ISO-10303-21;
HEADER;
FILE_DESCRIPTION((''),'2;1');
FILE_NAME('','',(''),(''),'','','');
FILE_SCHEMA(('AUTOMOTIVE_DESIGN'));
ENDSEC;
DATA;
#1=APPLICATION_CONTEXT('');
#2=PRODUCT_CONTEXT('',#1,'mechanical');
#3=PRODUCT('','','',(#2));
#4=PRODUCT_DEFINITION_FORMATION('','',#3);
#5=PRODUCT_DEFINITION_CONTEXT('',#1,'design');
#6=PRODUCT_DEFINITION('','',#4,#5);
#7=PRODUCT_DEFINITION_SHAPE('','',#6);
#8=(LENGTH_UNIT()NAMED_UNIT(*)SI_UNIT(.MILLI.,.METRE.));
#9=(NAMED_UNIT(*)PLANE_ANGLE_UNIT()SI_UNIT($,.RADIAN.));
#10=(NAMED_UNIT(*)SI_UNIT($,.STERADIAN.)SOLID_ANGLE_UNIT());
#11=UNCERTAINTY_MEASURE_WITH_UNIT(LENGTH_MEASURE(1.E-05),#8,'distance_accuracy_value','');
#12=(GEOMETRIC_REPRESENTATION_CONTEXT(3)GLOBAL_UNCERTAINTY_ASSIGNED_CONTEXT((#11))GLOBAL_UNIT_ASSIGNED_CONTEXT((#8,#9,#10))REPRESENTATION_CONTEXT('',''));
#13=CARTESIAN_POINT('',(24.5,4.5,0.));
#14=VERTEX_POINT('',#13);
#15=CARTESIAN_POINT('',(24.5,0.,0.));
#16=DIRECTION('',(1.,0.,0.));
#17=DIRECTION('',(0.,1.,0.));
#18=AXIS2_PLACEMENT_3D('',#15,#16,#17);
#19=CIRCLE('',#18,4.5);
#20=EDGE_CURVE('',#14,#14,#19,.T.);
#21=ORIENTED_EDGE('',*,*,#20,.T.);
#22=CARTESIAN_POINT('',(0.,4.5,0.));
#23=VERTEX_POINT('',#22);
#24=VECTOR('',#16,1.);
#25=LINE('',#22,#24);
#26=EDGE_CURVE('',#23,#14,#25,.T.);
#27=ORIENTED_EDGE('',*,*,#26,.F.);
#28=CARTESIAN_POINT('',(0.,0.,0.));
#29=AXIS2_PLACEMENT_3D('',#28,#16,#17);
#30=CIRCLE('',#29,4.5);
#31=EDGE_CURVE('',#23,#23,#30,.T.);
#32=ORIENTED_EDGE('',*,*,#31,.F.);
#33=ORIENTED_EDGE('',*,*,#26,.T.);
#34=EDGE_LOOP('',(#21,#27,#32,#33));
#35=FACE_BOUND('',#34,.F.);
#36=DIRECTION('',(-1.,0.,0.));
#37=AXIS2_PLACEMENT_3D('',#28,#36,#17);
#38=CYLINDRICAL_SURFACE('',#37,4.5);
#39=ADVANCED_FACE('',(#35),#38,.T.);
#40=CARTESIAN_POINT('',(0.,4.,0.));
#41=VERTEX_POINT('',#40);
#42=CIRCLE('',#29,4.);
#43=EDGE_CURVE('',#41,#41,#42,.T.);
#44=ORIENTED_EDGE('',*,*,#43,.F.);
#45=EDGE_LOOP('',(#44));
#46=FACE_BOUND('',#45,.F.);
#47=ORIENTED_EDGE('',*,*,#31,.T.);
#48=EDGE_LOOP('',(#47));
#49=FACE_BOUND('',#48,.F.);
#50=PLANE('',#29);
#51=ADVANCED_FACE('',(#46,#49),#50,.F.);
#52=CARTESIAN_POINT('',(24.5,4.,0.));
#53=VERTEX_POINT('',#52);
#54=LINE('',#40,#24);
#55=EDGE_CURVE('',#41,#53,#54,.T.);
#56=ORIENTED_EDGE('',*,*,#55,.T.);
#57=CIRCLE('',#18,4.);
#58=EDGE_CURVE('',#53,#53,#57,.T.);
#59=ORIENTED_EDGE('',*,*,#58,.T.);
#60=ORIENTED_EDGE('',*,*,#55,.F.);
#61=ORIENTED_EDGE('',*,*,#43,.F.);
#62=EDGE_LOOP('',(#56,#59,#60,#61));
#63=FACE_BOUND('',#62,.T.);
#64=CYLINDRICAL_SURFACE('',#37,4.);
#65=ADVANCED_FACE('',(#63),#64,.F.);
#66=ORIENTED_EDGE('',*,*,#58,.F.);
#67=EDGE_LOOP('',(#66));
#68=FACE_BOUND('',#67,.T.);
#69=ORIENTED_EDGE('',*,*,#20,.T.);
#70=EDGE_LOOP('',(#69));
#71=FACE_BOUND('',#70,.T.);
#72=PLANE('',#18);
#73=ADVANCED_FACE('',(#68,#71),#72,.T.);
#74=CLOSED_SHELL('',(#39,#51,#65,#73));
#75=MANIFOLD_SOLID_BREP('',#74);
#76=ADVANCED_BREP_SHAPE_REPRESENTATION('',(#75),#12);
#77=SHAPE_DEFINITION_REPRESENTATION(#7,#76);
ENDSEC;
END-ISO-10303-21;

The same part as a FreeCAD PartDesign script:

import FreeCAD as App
import Part
import Sketcher
Q = App.Units.Quantity

doc = App.newDocument("Part")
body = doc.addObject("PartDesign::Body", "Body")

sketch1 = body.newObject("Sketcher::SketchObject", "Sketch")
sketch1.AttachmentSupport = (doc.getObject("YZ_Plane"), [""])
sketch1.MapMode = "FlatFace"
sketch1.addGeometry(Part.Circle(App.Vector(0, 0, 0), App.Vector(0, 0, 1), 4.5), False)
sketch1.addGeometry(Part.Circle(App.Vector(0, 0, 0), App.Vector(0, 0, 1), 4), False)
sketch1.addConstraint(Sketcher.Constraint("Coincident", 0, 3, -1, 1))
sketch1.addConstraint(Sketcher.Constraint("Coincident", 1, 3, -1, 1))
sketch1.addConstraint(Sketcher.Constraint("Diameter", 1, Q("8 mm")))
sketch1.addConstraint(Sketcher.Constraint("Diameter", 0, Q("9 mm")))
pad1 = body.newObject("PartDesign::Pad", "Pad")
pad1.Profile = sketch1
pad1.Length = 24.5

doc.recompute()
